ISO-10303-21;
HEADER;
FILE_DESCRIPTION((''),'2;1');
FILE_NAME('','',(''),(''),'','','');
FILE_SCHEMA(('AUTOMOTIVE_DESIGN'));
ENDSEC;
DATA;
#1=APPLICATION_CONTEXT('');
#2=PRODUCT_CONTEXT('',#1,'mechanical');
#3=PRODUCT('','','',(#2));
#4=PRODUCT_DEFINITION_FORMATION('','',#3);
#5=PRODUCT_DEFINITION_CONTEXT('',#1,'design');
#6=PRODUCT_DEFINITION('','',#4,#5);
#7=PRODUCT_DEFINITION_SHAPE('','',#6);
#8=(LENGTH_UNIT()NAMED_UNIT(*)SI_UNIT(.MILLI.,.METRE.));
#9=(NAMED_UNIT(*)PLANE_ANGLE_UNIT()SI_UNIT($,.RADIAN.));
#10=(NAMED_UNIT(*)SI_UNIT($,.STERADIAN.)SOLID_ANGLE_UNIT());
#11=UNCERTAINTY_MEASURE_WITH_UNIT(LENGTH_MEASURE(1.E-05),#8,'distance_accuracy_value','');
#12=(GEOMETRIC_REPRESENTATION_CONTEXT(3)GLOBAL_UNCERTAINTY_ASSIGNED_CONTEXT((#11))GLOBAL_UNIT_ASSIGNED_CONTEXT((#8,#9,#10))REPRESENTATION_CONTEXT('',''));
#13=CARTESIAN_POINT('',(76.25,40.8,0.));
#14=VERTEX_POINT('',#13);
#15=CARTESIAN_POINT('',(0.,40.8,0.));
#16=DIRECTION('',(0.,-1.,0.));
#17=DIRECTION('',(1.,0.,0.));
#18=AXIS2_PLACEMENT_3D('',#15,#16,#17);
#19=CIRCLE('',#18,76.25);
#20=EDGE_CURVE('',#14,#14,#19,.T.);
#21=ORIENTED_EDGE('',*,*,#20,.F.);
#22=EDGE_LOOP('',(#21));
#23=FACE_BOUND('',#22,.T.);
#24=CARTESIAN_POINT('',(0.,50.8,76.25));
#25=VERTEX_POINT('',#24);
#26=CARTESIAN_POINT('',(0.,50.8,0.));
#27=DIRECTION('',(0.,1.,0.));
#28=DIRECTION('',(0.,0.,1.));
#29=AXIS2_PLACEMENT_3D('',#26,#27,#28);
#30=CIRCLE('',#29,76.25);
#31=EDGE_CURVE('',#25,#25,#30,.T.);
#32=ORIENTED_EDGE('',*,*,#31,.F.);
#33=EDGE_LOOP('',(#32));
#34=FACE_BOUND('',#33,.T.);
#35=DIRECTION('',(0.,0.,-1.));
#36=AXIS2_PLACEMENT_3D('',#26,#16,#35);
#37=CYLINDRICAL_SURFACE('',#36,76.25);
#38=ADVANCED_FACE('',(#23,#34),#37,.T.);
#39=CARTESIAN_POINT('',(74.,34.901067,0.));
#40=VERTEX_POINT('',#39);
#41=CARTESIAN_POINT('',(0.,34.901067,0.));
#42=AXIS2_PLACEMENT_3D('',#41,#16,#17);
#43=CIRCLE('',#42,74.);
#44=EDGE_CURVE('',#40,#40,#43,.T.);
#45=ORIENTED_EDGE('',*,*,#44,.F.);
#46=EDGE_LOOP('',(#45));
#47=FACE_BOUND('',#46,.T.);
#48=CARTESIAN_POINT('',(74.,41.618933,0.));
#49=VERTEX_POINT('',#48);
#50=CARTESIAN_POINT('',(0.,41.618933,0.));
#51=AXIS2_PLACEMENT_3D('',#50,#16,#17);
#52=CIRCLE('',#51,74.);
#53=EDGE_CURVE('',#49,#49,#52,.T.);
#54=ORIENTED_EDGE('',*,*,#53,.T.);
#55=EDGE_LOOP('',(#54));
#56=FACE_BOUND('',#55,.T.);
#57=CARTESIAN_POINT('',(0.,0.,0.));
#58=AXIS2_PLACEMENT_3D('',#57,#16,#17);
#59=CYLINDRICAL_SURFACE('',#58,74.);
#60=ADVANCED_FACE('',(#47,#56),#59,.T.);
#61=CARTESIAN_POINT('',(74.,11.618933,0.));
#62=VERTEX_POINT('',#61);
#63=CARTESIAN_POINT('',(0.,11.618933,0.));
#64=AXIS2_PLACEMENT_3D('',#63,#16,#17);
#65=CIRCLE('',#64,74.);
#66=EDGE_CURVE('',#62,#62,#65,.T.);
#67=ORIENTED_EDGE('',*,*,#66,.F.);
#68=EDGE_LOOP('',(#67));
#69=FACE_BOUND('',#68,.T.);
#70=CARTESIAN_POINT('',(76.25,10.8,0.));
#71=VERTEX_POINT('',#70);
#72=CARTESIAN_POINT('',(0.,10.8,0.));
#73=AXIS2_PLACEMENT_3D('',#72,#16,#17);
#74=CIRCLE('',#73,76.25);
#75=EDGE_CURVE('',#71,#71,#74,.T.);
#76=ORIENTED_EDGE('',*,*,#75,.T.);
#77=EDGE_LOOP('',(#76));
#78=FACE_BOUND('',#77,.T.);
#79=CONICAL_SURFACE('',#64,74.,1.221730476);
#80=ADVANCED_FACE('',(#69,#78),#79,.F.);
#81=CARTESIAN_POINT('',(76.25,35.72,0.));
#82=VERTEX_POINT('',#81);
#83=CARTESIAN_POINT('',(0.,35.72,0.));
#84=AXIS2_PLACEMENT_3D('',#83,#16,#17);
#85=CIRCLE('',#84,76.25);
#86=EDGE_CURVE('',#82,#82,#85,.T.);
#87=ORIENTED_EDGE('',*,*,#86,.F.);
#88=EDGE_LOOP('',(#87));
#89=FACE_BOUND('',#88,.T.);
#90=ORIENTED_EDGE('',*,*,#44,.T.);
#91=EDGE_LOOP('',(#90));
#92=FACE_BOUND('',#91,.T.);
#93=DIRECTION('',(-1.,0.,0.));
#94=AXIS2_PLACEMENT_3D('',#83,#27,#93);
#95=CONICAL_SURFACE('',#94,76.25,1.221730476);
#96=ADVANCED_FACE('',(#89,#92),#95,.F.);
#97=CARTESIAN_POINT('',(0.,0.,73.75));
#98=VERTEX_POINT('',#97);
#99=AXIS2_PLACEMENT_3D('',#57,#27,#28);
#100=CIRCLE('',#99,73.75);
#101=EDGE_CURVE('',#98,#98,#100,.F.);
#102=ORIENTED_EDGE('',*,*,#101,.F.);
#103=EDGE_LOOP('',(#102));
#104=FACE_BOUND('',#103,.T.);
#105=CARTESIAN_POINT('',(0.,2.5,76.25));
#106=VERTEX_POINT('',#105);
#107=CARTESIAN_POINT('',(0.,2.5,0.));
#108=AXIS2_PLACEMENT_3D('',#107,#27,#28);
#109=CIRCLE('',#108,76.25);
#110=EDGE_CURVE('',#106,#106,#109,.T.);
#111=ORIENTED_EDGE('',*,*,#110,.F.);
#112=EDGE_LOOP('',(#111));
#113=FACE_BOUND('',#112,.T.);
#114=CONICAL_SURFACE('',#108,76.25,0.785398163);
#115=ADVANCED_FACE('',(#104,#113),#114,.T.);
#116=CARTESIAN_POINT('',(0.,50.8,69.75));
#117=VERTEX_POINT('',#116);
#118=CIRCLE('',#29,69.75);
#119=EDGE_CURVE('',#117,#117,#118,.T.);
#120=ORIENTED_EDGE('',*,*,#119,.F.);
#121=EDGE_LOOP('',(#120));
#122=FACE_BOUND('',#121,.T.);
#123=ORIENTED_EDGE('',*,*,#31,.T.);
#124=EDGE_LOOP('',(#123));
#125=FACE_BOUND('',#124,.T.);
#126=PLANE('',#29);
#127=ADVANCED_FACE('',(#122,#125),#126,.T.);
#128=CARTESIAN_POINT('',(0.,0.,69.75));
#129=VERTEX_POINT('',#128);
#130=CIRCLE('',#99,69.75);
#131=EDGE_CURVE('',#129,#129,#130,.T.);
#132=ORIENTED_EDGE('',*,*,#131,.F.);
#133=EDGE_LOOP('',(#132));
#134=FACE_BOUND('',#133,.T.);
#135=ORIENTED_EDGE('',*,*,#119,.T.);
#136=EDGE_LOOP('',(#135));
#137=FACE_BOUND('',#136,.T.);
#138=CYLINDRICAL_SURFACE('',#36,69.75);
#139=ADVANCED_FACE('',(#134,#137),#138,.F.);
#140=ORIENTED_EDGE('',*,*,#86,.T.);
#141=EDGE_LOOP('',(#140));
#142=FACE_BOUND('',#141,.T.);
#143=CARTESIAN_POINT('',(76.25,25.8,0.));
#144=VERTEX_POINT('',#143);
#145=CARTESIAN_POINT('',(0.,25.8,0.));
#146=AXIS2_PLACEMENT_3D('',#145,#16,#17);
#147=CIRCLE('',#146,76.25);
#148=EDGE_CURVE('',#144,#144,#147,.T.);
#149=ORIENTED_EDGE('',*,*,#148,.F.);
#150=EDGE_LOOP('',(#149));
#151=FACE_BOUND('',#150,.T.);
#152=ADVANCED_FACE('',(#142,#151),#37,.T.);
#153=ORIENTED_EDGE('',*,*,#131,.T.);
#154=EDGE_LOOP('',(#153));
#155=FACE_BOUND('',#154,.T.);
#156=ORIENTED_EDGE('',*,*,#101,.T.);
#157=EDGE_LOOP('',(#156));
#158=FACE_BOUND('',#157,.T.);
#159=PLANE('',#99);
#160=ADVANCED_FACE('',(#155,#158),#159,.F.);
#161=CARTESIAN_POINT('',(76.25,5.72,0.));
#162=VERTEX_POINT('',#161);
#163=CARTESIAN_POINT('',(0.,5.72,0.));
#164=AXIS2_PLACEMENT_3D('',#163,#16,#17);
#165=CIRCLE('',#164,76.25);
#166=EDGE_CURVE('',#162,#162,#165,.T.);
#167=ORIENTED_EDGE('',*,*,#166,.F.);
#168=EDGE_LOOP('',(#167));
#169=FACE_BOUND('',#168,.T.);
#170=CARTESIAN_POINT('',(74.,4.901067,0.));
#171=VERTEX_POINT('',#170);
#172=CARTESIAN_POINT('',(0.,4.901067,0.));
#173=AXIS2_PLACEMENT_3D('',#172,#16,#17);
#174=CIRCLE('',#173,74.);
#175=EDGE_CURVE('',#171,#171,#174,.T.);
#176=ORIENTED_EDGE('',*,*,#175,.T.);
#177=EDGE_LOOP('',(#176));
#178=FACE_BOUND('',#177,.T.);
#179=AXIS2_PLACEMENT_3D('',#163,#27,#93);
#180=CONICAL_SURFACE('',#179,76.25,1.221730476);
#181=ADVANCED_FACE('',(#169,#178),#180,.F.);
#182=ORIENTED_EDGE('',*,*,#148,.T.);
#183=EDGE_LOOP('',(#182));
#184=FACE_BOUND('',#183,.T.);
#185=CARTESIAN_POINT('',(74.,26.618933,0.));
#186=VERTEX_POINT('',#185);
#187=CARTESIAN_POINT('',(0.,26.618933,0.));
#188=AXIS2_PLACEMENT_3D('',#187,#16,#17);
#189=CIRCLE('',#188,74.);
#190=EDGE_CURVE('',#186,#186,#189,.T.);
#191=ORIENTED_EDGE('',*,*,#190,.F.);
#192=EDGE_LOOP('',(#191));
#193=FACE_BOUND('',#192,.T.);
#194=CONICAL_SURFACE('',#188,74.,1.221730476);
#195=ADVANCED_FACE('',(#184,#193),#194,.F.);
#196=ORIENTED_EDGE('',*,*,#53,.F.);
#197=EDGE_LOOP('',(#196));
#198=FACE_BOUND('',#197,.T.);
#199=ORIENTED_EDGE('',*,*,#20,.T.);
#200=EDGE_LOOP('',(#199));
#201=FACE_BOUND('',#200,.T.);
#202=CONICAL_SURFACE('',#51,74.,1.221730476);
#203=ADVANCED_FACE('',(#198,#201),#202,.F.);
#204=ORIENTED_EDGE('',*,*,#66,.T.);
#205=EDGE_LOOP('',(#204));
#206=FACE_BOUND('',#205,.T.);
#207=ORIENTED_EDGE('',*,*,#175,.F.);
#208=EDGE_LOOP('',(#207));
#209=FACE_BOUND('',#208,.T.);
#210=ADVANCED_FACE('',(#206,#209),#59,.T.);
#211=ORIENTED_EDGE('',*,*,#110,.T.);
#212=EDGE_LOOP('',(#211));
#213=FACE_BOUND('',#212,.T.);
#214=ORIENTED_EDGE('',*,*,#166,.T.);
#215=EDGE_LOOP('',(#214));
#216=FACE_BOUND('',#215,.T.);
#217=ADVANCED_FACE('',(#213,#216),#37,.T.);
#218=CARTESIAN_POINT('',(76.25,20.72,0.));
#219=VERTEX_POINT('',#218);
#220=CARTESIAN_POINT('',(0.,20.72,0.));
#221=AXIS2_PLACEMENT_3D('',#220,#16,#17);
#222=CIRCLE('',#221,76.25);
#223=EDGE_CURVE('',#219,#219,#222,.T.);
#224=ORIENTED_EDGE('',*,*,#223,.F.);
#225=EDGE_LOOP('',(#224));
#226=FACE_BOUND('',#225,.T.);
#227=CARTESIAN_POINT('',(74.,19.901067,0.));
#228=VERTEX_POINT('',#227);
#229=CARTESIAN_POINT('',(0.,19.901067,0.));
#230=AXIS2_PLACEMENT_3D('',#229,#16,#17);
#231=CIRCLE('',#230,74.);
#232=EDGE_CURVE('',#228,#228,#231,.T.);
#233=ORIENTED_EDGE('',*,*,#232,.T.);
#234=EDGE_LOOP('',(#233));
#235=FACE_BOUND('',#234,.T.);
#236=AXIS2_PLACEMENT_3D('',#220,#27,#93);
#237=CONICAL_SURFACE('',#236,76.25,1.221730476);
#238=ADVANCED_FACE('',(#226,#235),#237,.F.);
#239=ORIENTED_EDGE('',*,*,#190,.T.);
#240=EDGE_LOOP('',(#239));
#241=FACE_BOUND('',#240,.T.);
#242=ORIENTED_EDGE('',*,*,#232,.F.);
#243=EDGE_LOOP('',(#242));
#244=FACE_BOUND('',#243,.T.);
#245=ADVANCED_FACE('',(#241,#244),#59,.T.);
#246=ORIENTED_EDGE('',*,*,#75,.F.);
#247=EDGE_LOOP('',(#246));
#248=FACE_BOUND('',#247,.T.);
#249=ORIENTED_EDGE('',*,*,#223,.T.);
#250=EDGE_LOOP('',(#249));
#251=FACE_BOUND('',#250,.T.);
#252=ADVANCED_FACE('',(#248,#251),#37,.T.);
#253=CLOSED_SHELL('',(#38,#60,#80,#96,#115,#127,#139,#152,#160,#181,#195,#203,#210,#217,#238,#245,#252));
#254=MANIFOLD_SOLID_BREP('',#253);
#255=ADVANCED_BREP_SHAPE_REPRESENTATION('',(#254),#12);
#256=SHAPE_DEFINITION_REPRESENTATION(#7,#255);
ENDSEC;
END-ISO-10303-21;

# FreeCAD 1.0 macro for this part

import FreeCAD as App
import Part
import Sketcher
Q = App.Units.Quantity


def edges_at(feature, points):
    """Names of the edges that pass closest to the given points."""
    edges = feature.Shape.Edges
    near = lambda p: min(range(len(edges)), key=lambda i: edges[i].distToShape(Part.Vertex(*p))[0])
    return sorted({f"Edge{near(p) + 1}" for p in points})


def add_polygon(sketch, points):
    """Adds a closed chain of lines whose ends are joined by coincident constraints."""
    first, n = sketch.GeometryCount, len(points)
    for a, b in zip(points, points[1:] + points[:1]):
        sketch.addGeometry(Part.LineSegment(App.Vector(*a, 0), App.Vector(*b, 0)), False)
    for i in range(n):
        sketch.addConstraint(Sketcher.Constraint("Coincident", first + i, 2, first + (i + 1) % n, 1))

doc = App.newDocument("Part")
body = doc.addObject("PartDesign::Body", "Body")

# Sketch on XZ plane
sketch1 = doc.addObject("Sketcher::SketchObject", "Sketch")
body.addObject(sketch1)
sketch1.AttachmentSupport = (doc.XZ_Plane, [""])
sketch1.MapMode = "FlatFace"
sketch1.addGeometry([
    Part.Circle(App.Vector(0, 0, 0), App.Vector(0, 0, 1), 76),
    Part.Circle(App.Vector(0, 0, 0), App.Vector(0, 0, 1), 70),
], False)
sketch1.addConstraint([
    Sketcher.Constraint("Coincident", 0, 3, -1, 1),
    Sketcher.Constraint("Coincident", 1, 3, -1, 1),
    Sketcher.Constraint("Diameter", 0, 152.5),
    Sketcher.Constraint("Diameter", 1, 139.5),
])
pad1 = doc.addObject("PartDesign::Pad", "Pad")
body.addObject(pad1)
pad1.Profile = sketch1
pad1.Length = 50.8
pad1.Reversed = True

# Sketch on XY plane
sketch2 = doc.addObject("Sketcher::SketchObject", "Sketch001")
body.addObject(sketch2)
sketch2.AttachmentSupport = (doc.XY_Plane, [""])
sketch2.MapMode = "FlatFace"
add_polygon(sketch2, [(-76.2, 40.8), (-76.2, 35.7), (-74, 34.9), (-74, 41.6)])  # lines 0-3
add_polygon(sketch2, [(-74, 19.9), (-74, 26.6), (-76.2, 25.8), (-76.2, 20.7)])  # lines 4-7
add_polygon(sketch2, [(-74, 4.9), (-74, 11.6), (-76.2, 10.8), (-76.2, 5.7)])  # lines 8-11
sketch2.addConstraint([
    Sketcher.Constraint("Vertical", 0),
    Sketcher.Constraint("Vertical", 2),
    Sketcher.Constraint("Vertical", 4),
    Sketcher.Constraint("Vertical", 6),
    Sketcher.Constraint("Vertical", 8),
    Sketcher.Constraint("Vertical", 10),
    Sketcher.Constraint("Parallel", 3, 5),
    Sketcher.Constraint("Parallel", 1, 7),
    Sketcher.Constraint("Parallel", 5, 9),
    Sketcher.Constraint("Parallel", 7, 11),
    Sketcher.Constraint("Vertical", 2, 2, 4, 2),
    Sketcher.Constraint("Vertical", 3, 2, 5, 2),
    Sketcher.Constraint("Vertical", 7, 2, 8, 2),
    Sketcher.Constraint("Vertical", 6, 2, 9, 2),
    Sketcher.Constraint("Equal", 2, 4),
    Sketcher.Constraint("Equal", 4, 8),
    Sketcher.Constraint("Equal", 1, 3),
    Sketcher.Constraint("Angle", 1, Q("-20 deg")),
    Sketcher.Constraint("DistanceX", 1, 2, -1, 1, 74.0),
    Sketcher.Constraint("DistanceY", 4, 2, 2, 2, 15.0),
    Sketcher.Constraint("DistanceY", 8, 2, 4, 2, 15.0),
    Sketcher.Constraint("DistanceY", 0, 2, 0, 1, 5.08),
    Sketcher.Constraint("DistanceY", -1, 1, 3, 2, 40.8),
    Sketcher.Constraint("DistanceX", 0, 2, -1, 1, 76.25),
])
groove = doc.addObject("PartDesign::Groove", "Groove")
body.addObject(groove)
groove.Profile = sketch2
groove.ReferenceAxis = (sketch2, ["V_Axis"])
groove.Angle = 360
doc.recompute()

chamfer = doc.addObject("PartDesign::Chamfer", "Chamfer")
body.addObject(chamfer)
chamfer.Base = (groove, edges_at(groove, [(-76.25, 0, 0)]))
chamfer.Size = 2.5

doc.recompute()
